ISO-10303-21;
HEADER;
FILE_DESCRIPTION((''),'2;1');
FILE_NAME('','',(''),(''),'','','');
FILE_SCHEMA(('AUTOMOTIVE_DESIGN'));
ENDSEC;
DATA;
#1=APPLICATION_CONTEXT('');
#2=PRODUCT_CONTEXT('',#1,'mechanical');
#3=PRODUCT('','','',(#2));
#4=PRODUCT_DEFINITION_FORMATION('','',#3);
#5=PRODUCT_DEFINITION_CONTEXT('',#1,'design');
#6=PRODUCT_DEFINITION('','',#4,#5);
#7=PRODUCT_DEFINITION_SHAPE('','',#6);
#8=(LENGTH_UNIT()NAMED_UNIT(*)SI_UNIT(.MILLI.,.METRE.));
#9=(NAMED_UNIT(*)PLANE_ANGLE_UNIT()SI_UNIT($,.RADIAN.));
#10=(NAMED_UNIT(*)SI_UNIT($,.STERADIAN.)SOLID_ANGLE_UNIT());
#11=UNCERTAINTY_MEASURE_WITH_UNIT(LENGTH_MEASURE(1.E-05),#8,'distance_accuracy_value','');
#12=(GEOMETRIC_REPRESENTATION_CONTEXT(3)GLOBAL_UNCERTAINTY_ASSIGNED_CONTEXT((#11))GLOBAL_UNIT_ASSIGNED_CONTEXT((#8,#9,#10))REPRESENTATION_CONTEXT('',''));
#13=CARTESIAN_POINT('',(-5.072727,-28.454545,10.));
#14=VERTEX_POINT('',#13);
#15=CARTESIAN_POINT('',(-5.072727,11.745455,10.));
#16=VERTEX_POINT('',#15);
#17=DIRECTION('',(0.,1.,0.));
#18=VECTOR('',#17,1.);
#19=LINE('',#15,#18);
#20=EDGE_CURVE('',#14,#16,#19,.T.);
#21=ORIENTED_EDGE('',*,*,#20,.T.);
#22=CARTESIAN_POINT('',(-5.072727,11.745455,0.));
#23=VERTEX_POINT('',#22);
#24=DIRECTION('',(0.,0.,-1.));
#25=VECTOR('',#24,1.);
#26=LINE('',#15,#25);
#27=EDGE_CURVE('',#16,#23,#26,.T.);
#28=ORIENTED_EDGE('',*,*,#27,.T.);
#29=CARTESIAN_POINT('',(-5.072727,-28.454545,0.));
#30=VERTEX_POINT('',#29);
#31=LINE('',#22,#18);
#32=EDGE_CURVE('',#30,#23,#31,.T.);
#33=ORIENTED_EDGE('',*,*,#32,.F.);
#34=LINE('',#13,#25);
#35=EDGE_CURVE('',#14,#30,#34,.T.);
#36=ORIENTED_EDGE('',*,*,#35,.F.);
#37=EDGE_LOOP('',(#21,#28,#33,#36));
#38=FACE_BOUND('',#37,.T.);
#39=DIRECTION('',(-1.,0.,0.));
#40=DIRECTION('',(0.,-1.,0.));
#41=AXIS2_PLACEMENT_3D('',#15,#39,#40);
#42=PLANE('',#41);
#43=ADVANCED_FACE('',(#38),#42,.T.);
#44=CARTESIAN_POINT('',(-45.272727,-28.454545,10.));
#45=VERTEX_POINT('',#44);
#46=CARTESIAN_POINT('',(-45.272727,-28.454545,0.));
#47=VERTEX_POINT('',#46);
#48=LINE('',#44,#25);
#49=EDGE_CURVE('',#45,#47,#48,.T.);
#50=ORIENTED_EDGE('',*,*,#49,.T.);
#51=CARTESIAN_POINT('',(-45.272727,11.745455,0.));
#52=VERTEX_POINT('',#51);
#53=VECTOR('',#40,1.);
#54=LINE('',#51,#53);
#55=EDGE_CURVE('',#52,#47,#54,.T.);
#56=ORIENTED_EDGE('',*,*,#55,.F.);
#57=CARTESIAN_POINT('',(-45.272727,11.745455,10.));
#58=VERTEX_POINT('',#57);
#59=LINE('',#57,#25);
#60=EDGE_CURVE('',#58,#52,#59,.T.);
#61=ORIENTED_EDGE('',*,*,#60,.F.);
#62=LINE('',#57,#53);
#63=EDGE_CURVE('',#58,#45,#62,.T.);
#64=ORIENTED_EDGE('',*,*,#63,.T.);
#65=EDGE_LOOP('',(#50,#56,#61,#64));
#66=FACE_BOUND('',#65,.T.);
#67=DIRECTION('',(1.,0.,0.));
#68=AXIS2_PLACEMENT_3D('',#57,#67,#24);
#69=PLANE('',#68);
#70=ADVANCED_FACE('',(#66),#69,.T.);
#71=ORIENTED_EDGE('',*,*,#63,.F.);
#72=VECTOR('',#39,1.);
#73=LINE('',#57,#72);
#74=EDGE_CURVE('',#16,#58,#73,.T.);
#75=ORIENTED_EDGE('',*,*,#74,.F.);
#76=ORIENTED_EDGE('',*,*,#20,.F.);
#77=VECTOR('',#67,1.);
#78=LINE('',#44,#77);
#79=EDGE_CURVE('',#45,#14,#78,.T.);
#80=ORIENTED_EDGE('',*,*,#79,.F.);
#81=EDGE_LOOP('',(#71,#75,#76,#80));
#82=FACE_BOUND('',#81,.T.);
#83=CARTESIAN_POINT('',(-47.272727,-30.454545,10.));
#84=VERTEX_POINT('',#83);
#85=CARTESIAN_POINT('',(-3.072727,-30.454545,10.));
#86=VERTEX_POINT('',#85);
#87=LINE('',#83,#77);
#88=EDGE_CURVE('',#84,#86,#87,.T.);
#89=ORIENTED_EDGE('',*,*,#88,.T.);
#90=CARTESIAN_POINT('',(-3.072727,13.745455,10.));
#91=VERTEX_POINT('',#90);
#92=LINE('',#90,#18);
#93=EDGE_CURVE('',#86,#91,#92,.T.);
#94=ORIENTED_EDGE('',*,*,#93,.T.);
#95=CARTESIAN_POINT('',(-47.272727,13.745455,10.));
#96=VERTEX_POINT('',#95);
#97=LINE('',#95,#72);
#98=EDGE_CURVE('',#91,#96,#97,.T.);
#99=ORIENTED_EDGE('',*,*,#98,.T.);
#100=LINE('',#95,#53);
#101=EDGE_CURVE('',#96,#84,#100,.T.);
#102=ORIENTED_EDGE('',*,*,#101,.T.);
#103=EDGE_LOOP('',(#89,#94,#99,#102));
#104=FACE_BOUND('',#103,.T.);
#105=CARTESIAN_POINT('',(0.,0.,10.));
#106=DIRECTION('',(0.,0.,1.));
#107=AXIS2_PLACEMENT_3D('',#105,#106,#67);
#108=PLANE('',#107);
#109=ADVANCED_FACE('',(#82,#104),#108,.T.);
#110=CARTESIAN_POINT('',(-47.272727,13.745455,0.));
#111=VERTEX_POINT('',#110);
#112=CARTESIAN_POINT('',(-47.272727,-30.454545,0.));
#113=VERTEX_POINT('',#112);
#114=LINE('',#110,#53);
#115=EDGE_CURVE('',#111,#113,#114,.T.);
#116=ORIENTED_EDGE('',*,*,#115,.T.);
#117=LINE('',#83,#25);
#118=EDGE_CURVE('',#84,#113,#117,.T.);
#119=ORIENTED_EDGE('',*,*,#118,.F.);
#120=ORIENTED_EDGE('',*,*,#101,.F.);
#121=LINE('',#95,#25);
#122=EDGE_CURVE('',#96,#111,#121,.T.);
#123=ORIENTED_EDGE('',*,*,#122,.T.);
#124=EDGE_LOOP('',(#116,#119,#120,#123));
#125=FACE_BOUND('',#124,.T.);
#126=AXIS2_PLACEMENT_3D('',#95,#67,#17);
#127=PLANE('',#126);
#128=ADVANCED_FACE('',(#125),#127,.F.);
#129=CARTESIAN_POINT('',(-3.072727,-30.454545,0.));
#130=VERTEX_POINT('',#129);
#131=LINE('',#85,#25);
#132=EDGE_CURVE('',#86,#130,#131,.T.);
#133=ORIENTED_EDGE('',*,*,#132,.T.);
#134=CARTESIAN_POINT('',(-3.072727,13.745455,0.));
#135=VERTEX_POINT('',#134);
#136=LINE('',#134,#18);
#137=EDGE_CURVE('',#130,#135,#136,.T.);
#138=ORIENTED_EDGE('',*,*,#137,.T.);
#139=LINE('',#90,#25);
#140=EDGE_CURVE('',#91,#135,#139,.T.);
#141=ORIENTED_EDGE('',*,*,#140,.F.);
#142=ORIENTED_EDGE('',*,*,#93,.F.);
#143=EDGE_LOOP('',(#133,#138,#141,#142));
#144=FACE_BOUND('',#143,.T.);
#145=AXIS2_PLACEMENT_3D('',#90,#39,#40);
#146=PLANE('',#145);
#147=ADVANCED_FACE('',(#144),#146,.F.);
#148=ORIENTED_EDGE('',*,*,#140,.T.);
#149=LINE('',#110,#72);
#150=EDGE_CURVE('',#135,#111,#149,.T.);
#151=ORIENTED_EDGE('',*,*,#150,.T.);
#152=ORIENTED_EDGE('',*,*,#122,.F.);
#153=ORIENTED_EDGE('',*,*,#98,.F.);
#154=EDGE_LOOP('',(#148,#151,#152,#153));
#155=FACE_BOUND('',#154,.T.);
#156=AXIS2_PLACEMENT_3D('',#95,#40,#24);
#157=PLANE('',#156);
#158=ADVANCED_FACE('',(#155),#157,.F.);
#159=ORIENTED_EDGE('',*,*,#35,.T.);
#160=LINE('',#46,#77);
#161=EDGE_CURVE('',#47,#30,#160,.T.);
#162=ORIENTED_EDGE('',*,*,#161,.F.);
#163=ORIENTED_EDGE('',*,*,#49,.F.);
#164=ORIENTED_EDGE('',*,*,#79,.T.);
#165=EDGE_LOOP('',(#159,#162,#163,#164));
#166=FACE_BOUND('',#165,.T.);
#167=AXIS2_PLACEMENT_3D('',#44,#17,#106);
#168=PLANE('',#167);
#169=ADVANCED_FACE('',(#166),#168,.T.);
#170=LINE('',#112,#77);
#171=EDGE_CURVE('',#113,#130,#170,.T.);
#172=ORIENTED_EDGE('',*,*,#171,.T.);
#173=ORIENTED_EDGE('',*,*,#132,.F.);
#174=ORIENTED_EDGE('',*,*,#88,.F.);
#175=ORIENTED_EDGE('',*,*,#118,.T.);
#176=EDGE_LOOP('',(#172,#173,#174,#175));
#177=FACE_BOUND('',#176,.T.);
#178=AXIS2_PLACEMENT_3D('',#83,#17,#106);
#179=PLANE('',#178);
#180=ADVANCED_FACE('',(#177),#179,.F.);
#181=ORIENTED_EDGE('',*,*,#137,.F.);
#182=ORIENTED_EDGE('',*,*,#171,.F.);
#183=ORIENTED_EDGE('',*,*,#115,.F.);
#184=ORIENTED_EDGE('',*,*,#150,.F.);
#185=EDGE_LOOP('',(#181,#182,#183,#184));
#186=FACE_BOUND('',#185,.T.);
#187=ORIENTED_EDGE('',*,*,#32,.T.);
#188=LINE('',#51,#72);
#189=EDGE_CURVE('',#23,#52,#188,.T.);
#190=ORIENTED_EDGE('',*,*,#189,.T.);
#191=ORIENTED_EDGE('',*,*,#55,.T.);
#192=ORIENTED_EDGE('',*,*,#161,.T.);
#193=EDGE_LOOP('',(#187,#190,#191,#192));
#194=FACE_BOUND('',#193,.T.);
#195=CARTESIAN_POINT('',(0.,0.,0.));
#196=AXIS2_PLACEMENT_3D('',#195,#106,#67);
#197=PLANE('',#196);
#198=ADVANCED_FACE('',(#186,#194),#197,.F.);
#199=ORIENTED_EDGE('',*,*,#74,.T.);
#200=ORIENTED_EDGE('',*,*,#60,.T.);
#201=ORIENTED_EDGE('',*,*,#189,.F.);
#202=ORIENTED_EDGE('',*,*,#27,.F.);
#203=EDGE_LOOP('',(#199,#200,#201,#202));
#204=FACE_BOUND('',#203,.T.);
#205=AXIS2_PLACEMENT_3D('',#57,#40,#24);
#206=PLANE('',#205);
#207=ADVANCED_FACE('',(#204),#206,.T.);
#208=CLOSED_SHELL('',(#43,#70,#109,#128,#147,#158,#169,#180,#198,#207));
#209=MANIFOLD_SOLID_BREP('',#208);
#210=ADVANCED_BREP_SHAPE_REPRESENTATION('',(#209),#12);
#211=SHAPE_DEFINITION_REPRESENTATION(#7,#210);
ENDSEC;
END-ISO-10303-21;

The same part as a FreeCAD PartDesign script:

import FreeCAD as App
import Part
import Sketcher
Q = App.Units.Quantity


def add_polygon(sketch, points):
    """Adds a closed chain of lines whose ends are joined by coincident constraints."""
    first, n = sketch.GeometryCount, len(points)
    for a, b in zip(points, points[1:] + points[:1]):
        sketch.addGeometry(Part.LineSegment(App.Vector(*a, 0), App.Vector(*b, 0)), False)
    for i in range(n):
        sketch.addConstraint(Sketcher.Constraint("Coincident", first + i, 2, first + (i + 1) % n, 1))

doc = App.newDocument("Part")
body = doc.addObject("PartDesign::Body", "Body")

# Sketch on XY plane
sketch1 = doc.addObject("Sketcher::SketchObject", "Sketch")
body.addObject(sketch1)
sketch1.AttachmentSupport = (doc.XY_Plane, [""])
sketch1.MapMode = "FlatFace"
add_polygon(sketch1, [(-47, 14), (-47, -30), (-3, -30), (-3, 14)])  # lines 0-3
add_polygon(sketch1, [(-5, -28), (-45, -28), (-45, 12), (-5, 12)])  # lines 4-7
sketch1.addConstraint([
    Sketcher.Constraint("Vertical", 0),
    Sketcher.Constraint("Horizontal", 1),
    Sketcher.Constraint("Vertical", 2),
    Sketcher.Constraint("Horizontal", 3),
    Sketcher.Constraint("Horizontal", 4),
    Sketcher.Constraint("Vertical", 5),
    Sketcher.Constraint("Horizontal", 6),
    Sketcher.Constraint("Vertical", 7),
    Sketcher.Constraint("Equal", 3, 0),
    Sketcher.Constraint("Equal", 6, 5),
    Sketcher.Constraint("DistanceX", 1, 1, 1, 2, Q("44.2 mm")),
    Sketcher.Constraint("DistanceX", 4, 2, 4, 1, Q("40.2 mm")),
    Sketcher.Constraint("DistanceX", 0, 2, 4, 2, Q("2 mm")),
    Sketcher.Constraint("DistanceY", 0, 2, 4, 2, Q("2 mm")),
    Sketcher.Constraint("DistanceX", 0, 2, -1, 1, Q("47.272727 mm")),
    Sketcher.Constraint("DistanceY", 0, 2, -1, 1, Q("30.454545 mm")),
])
pad1 = doc.addObject("PartDesign::Pad", "Pad")
body.addObject(pad1)
pad1.Profile = sketch1
pad1.Length = 10

doc.recompute()
